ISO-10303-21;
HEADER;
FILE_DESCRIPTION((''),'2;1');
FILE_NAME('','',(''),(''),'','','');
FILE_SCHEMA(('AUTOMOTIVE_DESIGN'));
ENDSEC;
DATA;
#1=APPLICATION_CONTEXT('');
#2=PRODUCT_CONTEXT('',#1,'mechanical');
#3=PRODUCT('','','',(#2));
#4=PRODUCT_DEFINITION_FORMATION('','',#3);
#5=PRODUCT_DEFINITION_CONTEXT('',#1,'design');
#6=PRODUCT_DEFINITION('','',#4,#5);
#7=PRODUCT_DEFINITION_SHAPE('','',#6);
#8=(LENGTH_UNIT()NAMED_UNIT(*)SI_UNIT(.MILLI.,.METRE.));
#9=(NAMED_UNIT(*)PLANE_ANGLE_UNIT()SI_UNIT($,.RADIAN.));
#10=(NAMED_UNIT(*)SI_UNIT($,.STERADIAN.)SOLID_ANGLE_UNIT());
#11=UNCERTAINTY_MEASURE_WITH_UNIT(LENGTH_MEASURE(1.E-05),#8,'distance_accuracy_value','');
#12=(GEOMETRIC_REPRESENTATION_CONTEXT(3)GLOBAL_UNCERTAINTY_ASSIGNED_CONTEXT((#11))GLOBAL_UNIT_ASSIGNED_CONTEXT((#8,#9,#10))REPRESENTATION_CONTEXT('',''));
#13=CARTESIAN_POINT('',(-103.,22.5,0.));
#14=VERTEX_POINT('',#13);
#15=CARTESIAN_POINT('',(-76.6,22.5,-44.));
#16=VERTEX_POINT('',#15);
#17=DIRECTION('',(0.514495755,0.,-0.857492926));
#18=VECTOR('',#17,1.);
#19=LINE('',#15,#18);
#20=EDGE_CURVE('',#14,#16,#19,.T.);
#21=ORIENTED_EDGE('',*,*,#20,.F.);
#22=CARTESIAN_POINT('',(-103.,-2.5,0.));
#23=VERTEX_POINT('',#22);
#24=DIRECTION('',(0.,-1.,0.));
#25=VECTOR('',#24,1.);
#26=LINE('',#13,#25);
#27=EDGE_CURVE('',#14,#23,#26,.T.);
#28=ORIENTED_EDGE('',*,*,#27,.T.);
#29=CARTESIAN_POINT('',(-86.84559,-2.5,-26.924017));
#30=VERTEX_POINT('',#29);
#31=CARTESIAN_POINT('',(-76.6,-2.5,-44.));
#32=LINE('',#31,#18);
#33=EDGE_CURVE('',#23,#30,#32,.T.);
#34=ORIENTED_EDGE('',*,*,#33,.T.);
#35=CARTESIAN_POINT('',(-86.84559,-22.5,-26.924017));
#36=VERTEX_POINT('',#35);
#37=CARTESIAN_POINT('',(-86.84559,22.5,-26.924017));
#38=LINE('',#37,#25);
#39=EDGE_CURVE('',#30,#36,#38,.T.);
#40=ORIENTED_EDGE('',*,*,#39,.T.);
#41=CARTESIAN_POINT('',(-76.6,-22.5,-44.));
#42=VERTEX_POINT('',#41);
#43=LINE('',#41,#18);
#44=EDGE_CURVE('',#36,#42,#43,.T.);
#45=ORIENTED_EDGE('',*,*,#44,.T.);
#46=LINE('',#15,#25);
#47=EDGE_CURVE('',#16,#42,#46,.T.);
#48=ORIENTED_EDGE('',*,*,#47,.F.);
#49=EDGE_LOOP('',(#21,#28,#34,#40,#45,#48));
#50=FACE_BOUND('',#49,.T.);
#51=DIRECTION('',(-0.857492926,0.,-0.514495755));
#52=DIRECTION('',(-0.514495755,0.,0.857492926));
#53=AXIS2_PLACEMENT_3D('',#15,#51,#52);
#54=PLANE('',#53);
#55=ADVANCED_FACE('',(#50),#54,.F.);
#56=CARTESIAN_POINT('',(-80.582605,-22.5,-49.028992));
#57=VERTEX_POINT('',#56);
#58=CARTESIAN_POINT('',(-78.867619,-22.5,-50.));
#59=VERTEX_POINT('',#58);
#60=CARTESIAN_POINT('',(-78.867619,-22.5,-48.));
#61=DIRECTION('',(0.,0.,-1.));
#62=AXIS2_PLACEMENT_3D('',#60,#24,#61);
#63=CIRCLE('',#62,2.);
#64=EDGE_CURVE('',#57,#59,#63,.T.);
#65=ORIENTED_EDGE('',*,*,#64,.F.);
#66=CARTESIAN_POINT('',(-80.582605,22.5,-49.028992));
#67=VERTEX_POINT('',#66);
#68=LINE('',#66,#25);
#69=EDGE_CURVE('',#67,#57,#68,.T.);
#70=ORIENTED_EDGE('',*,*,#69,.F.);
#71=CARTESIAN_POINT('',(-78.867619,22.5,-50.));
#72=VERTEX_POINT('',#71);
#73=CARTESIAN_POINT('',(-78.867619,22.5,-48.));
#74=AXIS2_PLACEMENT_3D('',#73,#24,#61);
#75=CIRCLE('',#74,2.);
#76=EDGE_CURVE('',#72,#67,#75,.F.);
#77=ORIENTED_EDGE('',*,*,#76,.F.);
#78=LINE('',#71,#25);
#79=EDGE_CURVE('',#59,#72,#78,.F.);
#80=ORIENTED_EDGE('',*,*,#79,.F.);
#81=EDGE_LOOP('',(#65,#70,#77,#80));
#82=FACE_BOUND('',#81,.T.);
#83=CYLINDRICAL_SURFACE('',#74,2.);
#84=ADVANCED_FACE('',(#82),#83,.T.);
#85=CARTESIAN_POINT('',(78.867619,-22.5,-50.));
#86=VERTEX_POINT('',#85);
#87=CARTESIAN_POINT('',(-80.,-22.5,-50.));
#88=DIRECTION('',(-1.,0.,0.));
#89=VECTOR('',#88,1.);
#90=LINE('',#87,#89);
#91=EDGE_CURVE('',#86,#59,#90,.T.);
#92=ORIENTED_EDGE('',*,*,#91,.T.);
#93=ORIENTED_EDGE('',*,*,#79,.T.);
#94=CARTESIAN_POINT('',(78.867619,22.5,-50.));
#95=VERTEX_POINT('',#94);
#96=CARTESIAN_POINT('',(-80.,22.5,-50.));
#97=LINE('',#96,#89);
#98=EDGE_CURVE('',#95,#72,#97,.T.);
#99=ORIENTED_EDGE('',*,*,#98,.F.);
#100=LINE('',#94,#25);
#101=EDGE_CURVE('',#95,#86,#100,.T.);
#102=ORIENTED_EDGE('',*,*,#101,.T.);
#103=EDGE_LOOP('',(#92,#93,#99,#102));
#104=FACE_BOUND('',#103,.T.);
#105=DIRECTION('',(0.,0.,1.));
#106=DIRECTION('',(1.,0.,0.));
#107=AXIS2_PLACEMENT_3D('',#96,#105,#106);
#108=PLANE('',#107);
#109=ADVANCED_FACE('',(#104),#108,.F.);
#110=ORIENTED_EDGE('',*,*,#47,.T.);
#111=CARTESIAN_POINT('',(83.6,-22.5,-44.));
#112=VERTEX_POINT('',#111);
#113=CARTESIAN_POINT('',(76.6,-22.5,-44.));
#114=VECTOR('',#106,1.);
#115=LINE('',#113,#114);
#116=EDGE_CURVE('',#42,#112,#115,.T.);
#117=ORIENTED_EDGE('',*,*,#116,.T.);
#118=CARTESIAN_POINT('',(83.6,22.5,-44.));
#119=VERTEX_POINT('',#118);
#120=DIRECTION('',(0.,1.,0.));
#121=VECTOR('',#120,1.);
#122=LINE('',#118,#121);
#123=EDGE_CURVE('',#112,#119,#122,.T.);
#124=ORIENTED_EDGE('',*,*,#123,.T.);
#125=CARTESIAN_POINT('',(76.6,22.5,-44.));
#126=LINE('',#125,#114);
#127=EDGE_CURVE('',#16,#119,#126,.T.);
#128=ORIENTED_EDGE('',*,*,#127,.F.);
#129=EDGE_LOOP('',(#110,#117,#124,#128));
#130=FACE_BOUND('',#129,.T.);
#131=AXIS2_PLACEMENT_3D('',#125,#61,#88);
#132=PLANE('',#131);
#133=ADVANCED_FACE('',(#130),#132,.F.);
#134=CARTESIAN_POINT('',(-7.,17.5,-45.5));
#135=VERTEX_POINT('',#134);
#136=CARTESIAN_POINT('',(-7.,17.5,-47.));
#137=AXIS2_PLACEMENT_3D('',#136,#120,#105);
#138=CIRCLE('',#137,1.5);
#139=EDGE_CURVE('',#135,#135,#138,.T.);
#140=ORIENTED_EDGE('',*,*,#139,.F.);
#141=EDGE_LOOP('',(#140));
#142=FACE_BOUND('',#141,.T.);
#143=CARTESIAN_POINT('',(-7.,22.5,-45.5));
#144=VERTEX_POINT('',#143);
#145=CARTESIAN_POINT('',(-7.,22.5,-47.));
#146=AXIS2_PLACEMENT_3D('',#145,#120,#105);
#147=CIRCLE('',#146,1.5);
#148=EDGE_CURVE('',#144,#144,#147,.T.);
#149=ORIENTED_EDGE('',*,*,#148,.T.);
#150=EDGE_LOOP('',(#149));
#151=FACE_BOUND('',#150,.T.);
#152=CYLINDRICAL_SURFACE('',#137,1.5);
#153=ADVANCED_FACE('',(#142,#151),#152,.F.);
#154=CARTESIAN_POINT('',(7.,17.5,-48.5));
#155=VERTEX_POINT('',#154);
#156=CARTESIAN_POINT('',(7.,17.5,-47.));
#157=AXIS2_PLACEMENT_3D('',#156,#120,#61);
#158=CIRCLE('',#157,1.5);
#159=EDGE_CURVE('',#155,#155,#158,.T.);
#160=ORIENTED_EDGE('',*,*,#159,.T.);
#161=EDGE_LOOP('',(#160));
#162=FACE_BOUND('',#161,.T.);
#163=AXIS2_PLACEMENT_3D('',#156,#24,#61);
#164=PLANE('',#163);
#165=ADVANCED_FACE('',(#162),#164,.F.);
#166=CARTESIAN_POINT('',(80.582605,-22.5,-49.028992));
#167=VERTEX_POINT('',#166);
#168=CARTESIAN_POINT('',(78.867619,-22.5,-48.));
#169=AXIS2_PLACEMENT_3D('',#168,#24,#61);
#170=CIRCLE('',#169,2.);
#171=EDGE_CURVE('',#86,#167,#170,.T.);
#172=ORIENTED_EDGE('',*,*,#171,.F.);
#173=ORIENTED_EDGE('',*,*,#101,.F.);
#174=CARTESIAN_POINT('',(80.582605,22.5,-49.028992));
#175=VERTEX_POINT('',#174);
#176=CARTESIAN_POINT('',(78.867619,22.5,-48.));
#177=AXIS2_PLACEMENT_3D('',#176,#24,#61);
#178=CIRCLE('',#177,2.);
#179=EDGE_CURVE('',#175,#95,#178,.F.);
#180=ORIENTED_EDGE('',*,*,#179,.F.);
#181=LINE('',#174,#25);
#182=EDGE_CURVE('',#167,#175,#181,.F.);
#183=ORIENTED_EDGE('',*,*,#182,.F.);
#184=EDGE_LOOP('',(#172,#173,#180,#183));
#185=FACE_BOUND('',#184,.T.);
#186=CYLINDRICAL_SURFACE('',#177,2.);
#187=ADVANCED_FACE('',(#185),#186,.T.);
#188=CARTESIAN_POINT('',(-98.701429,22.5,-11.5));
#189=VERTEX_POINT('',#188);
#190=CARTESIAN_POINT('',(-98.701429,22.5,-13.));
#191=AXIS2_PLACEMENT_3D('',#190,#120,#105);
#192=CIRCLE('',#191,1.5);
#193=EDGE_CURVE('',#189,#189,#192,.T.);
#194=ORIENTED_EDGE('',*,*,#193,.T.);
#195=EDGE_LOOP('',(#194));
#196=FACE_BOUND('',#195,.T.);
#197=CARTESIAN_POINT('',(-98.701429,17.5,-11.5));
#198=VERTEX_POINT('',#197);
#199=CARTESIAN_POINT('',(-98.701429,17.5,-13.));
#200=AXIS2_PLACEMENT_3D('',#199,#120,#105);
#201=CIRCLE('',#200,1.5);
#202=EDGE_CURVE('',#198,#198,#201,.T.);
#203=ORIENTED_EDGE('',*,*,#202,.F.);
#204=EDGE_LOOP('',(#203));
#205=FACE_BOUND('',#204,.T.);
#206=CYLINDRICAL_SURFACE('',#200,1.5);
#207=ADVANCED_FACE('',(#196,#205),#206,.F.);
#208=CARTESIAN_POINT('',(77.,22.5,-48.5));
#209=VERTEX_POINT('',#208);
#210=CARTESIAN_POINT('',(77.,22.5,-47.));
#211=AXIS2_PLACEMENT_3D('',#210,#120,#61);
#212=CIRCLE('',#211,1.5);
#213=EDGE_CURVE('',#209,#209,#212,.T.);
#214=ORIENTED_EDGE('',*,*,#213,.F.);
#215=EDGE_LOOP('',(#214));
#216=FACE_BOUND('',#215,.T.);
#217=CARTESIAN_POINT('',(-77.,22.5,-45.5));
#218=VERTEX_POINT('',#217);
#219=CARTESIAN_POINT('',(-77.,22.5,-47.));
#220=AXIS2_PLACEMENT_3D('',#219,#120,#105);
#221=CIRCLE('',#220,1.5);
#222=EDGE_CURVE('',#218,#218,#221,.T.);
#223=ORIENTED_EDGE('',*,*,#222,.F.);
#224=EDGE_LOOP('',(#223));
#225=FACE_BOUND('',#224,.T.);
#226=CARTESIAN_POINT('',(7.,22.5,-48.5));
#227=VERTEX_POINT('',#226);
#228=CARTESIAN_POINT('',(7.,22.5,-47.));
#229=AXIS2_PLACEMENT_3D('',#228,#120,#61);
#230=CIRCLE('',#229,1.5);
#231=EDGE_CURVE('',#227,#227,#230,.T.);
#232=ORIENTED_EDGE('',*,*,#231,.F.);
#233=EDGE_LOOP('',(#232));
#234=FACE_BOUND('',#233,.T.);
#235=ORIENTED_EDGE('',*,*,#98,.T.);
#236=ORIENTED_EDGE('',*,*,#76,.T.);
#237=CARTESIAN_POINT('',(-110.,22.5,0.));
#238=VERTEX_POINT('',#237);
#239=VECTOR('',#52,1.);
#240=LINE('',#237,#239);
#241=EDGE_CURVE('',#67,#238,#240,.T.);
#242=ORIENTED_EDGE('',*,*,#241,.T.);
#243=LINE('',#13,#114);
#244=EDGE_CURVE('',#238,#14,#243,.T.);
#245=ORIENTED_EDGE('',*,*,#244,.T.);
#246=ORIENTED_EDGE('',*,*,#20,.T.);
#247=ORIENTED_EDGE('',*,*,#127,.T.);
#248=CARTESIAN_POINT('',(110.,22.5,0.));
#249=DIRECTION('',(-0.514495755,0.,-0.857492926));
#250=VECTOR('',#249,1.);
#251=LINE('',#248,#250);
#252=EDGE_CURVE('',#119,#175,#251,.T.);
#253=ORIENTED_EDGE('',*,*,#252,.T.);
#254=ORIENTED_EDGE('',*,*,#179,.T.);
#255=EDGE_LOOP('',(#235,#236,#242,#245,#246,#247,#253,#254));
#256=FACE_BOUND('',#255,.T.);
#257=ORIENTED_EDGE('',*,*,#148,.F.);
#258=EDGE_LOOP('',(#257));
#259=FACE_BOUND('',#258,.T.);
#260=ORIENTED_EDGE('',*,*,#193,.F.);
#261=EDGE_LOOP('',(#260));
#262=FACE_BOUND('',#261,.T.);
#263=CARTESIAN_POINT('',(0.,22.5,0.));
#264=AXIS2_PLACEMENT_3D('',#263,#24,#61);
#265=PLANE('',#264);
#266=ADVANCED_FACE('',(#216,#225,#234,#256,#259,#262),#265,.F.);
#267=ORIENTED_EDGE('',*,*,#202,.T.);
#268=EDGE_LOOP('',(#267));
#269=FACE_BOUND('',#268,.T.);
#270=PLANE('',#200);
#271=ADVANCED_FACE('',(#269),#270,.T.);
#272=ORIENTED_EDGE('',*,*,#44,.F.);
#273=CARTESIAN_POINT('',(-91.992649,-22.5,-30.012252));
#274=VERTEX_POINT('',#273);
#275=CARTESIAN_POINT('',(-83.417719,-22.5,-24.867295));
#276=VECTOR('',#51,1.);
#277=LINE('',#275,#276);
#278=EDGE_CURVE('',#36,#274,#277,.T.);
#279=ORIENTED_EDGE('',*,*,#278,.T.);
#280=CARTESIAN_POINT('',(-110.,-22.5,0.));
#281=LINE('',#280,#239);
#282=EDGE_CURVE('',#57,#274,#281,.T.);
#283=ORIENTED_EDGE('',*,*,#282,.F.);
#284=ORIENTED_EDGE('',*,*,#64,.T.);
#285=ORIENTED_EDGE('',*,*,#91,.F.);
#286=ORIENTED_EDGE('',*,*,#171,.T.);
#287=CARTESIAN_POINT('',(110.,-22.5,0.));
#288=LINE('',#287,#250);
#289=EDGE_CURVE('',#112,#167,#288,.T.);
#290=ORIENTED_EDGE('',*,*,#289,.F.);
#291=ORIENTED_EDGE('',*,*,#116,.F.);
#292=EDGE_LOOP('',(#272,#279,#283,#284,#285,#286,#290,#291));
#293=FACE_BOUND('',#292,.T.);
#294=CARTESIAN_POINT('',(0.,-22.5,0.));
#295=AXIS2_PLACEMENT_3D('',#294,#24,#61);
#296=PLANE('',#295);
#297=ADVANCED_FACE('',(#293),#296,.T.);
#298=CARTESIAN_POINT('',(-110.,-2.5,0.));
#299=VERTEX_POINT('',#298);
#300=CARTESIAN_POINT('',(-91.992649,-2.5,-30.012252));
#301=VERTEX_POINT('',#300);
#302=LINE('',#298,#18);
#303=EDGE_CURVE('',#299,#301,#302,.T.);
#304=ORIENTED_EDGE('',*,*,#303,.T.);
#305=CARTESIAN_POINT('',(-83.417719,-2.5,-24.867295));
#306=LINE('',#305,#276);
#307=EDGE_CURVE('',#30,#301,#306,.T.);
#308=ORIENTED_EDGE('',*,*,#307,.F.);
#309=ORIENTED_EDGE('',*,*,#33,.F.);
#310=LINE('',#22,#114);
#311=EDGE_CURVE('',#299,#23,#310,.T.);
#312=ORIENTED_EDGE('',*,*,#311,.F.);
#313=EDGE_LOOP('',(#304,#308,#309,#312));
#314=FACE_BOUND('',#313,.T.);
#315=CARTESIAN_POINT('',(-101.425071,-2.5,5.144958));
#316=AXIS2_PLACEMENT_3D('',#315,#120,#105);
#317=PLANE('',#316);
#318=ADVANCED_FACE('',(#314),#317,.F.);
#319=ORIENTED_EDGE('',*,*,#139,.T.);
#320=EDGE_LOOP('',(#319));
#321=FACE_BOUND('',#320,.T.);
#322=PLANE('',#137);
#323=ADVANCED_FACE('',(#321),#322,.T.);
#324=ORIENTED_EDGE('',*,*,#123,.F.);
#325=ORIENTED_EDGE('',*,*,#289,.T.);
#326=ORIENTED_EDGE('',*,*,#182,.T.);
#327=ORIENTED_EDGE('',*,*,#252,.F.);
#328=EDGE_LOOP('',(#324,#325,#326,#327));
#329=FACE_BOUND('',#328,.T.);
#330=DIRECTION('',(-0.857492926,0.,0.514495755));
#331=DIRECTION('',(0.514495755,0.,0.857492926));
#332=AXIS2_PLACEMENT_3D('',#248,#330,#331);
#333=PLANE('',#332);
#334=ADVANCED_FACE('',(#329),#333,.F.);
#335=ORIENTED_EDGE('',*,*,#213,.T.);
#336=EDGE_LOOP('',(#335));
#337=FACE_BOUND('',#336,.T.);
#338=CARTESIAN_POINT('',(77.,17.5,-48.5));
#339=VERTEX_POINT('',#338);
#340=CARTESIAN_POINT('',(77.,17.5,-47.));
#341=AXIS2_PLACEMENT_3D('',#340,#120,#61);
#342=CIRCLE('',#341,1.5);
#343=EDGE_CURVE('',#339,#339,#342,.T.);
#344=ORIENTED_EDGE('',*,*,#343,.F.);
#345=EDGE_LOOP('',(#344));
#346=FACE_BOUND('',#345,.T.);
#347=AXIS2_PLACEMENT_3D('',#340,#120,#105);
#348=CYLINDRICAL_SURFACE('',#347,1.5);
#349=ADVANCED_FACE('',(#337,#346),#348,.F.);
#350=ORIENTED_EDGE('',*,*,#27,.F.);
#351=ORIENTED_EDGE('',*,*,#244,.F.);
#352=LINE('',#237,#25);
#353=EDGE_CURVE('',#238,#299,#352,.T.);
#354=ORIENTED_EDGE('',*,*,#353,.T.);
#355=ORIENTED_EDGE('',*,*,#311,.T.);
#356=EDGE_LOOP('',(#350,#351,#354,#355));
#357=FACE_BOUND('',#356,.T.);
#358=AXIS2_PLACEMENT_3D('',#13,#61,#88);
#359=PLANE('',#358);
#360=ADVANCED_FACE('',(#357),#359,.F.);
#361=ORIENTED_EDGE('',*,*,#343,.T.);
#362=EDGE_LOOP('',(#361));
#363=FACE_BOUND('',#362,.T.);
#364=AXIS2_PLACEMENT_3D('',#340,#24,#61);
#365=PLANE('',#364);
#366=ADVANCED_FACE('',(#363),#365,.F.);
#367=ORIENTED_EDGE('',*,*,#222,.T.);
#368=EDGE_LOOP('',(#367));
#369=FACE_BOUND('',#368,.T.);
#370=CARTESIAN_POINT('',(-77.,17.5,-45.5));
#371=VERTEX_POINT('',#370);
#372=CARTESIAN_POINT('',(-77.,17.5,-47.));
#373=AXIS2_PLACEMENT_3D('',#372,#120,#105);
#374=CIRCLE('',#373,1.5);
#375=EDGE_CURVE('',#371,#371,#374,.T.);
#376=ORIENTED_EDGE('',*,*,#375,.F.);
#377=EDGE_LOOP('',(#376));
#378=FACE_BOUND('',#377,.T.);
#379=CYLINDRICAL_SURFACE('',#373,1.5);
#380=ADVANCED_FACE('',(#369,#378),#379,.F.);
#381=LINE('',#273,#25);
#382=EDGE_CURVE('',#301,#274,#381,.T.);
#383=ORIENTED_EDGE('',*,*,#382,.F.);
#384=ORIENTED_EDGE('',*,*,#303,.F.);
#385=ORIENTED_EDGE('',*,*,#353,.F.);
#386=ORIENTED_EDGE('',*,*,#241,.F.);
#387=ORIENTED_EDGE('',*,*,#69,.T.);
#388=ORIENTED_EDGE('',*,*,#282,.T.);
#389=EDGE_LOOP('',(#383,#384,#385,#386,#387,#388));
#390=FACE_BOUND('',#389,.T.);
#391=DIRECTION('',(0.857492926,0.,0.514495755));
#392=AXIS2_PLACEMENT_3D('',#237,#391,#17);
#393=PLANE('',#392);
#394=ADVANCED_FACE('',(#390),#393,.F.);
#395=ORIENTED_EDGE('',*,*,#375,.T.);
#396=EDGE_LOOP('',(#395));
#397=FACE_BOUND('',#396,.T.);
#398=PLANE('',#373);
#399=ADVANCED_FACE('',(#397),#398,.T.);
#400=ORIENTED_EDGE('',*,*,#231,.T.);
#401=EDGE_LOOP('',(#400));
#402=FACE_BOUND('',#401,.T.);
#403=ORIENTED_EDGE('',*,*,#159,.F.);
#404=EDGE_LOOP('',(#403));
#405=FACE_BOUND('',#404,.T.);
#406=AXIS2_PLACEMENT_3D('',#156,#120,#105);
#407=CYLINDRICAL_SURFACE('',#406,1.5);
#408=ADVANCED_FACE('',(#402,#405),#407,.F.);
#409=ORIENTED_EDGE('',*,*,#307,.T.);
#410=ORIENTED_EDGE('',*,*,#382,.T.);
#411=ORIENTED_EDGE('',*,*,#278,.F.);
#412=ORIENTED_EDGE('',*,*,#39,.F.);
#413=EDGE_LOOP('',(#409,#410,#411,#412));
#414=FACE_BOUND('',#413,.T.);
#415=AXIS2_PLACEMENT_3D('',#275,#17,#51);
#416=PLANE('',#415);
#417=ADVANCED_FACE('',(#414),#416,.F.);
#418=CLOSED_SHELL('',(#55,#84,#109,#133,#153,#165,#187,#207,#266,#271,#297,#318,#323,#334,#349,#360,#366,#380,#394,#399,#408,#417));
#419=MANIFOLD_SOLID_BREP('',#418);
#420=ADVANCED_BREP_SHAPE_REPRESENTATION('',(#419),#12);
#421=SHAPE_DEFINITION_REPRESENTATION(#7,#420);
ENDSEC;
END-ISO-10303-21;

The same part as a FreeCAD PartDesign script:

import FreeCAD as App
import Part
import Sketcher

V = App.Vector
Q = App.Units.Quantity


def edges_at(feature, points):
    """Names of the edges that pass closest to the given points."""
    edges = feature.Shape.Edges
    near = lambda p: min(range(len(edges)), key=lambda i: edges[i].distToShape(Part.Vertex(*p))[0])
    return sorted({f"Edge{near(p) + 1}" for p in points})


def add_polygon(sketch, points):
    """Adds a closed chain of lines whose ends are joined by coincident constraints."""
    first, n = sketch.GeometryCount, len(points)
    for a, b in zip(points, points[1:] + points[:1]):
        sketch.addGeometry(Part.LineSegment(App.Vector(*a, 0), App.Vector(*b, 0)), False)
    for i in range(n):
        sketch.addConstraint(Sketcher.Constraint("Coincident", first + i, 2, first + (i + 1) % n, 1))

doc = App.newDocument("Part")
body = doc.addObject("PartDesign::Body", "Body")

sketch1 = doc.addObject("Sketcher::SketchObject", "Sketch")
body.addObject(sketch1)
sketch1.AttachmentSupport = (doc.XZ_Plane, [""])
sketch1.MapMode = "FlatFace"
add_polygon(sketch1, [(-80, -50), (-110, 0), (-103, 0), (-77, -44), (77, -44), (103, 0), (110, 0), (80, -50)])
sketch1.addConstraint([
    Sketcher.Constraint("Horizontal", 1),
    Sketcher.Constraint("Horizontal", 3),
    Sketcher.Constraint("Horizontal", 5),
    Sketcher.Constraint("Horizontal", 7),
    Sketcher.Constraint("Symmetric", 1, 2, 4, 2, -1, 1),
    Sketcher.Constraint("Symmetric", 0, 2, 5, 2, -2),
    Sketcher.Constraint("Parallel", 0, 2),
    Sketcher.Constraint("Parallel", 4, 6),
    Sketcher.Constraint("Equal", 2, 4),
    Sketcher.Constraint("DistanceX", 1, 1, 1, 2, Q("7 mm")),
    Sketcher.Constraint("DistanceX", 7, 2, 7, 1, Q("160 mm")),
    Sketcher.Constraint("DistanceX", 3, 1, 3, 2, Q("153.2 mm")),
    Sketcher.Constraint("DistanceX", 0, 2, -1, 1, Q("110 mm")),
    Sketcher.Constraint("DistanceY", 2, 2, -1, 1, Q("44 mm")),
])
pad1 = doc.addObject("PartDesign::Pad", "Pad")
body.addObject(pad1)
pad1.Profile = sketch1
pad1.Length = 45
pad1.Midplane = True

sketch2 = doc.addObject("Sketcher::SketchObject", "Sketch001")
body.addObject(sketch2)
sketch2.AttachmentSupport = (doc.XZ_Plane, [""])
sketch2.MapMode = "FlatFace"
sketch2.AttachmentOffset = App.Placement(V(0, 0, -22.5), App.Rotation())
sketch2.addGeometry([
    Part.Circle(V(-98.7, -13, 0), V(0, 0, 1), 1.5),
    Part.Circle(V(-77, -47, 0), V(0, 0, 1), 1.5),
    Part.Circle(V(-7, -47, 0), V(0, 0, 1), 1.5),
    Part.Circle(V(7, -47, 0), V(0, 0, 1), 1.5),
    Part.Circle(V(77, -47, 0), V(0, 0, 1), 1.5),
    Part.Circle(V(98.7, -13, 0), V(0, 0, 1), 1.5),
], False)
sketch2.addConstraint([
    Sketcher.Constraint("Equal", 0, 1),
    Sketcher.Constraint("Equal", 1, 2),
    Sketcher.Constraint("Equal", 2, 3),
    Sketcher.Constraint("Equal", 3, 4),
    Sketcher.Constraint("Equal", 4, 5),
    Sketcher.Constraint("Symmetric", 2, 3, 3, 3, -2),
    Sketcher.Constraint("Symmetric", 1, 3, 4, 3, -2),
    Sketcher.Constraint("Symmetric", 0, 3, 5, 3, -2),
    Sketcher.Constraint("Horizontal", 1, 3, 2, 3),
    Sketcher.Constraint("Diameter", 0, Q("3 mm")),
    Sketcher.Constraint("DistanceY", 0, 3, -1, 1, Q("13 mm")),
    Sketcher.Constraint("DistanceX", 1, 3, -1, 1, Q("77 mm")),
    Sketcher.Constraint("DistanceY", 1, 3, -1, 1, Q("47 mm")),
    Sketcher.Constraint("DistanceX", 2, 3, -1, 1, Q("7 mm")),
    Sketcher.Constraint("DistanceX", 0, 3, -1, 1, Q("98.701429 mm")),
])
pocket1 = doc.addObject("PartDesign::Pocket", "Pocket")
body.addObject(pocket1)
pocket1.Profile = sketch2
pocket1.Length = 5
pocket1.Reversed = True
doc.recompute()

fillet = doc.addObject("PartDesign::Fillet", "Fillet")
body.addObject(fillet)
fillet.Base = (pocket1, edges_at(pocket1, [(-80, 0, -50), (80, 0, -50)]))
fillet.Radius = 2

sketch3 = doc.addObject("Sketcher::SketchObject", "Sketch002")
body.addObject(sketch3)
sketch3.Placement = App.Placement(V(-80.882353, 0, -48.529412), App.Rotation(V(-0.514495755, 0, 0.857492926), V(0, 1, 0), V(-0.857492926, 0, -0.514495755), "ZXY"))
add_polygon(sketch3, [(22, -2), (22, -23), (57, -23), (57, -2)])
sketch3.addConstraint([
    Sketcher.Constraint("Vertical", 0),
    Sketcher.Constraint("Horizontal", 1),
    Sketcher.Constraint("Vertical", 2),
    Sketcher.Constraint("Horizontal", 3),
    Sketcher.Constraint("DistanceX", 1, 1, 1, 2, Q("35 mm")),
    Sketcher.Constraint("DistanceY", 0, 2, 0, 1, Q("20 mm")),
    Sketcher.Constraint("DistanceY", 0, 2, -1, 1, Q("22.5 mm")),
    Sketcher.Constraint("DistanceX", -1, 1, 0, 2, Q("21.594533 mm")),
])
pocket2 = doc.addObject("PartDesign::Pocket", "Pocket001")
body.addObject(pocket2)
pocket2.Profile = sketch3
pocket2.Length = 10

sketch4 = doc.addObject("Sketcher::SketchObject", "Sketch003")
body.addObject(sketch4)
sketch4.AttachmentSupport = (doc.YZ_Plane, [""])
sketch4.MapMode = "FlatFace"
add_polygon(sketch4, [(22, 0), (-22, 0), (-22, -44), (22, -44)])
sketch4.addConstraint([
    Sketcher.Constraint("Horizontal", 0),
    Sketcher.Constraint("Vertical", 1),
    Sketcher.Constraint("Horizontal", 2),
    Sketcher.Constraint("Vertical", 3),
    Sketcher.Constraint("Symmetric", 0, 2, 3, 2, -1, 1),
    Sketcher.Constraint("DistanceX", 0, 2, 0, 1, Q("45 mm")),
    Sketcher.Constraint("DistanceY", 1, 2, 1, 1, Q("44 mm")),
])
pocket3 = doc.addObject("PartDesign::Pocket", "Pocket002")
body.addObject(pocket3)
pocket3.Profile = sketch4
pocket3.Type = "ThroughAll"
pocket3.Reversed = True

doc.recompute()
